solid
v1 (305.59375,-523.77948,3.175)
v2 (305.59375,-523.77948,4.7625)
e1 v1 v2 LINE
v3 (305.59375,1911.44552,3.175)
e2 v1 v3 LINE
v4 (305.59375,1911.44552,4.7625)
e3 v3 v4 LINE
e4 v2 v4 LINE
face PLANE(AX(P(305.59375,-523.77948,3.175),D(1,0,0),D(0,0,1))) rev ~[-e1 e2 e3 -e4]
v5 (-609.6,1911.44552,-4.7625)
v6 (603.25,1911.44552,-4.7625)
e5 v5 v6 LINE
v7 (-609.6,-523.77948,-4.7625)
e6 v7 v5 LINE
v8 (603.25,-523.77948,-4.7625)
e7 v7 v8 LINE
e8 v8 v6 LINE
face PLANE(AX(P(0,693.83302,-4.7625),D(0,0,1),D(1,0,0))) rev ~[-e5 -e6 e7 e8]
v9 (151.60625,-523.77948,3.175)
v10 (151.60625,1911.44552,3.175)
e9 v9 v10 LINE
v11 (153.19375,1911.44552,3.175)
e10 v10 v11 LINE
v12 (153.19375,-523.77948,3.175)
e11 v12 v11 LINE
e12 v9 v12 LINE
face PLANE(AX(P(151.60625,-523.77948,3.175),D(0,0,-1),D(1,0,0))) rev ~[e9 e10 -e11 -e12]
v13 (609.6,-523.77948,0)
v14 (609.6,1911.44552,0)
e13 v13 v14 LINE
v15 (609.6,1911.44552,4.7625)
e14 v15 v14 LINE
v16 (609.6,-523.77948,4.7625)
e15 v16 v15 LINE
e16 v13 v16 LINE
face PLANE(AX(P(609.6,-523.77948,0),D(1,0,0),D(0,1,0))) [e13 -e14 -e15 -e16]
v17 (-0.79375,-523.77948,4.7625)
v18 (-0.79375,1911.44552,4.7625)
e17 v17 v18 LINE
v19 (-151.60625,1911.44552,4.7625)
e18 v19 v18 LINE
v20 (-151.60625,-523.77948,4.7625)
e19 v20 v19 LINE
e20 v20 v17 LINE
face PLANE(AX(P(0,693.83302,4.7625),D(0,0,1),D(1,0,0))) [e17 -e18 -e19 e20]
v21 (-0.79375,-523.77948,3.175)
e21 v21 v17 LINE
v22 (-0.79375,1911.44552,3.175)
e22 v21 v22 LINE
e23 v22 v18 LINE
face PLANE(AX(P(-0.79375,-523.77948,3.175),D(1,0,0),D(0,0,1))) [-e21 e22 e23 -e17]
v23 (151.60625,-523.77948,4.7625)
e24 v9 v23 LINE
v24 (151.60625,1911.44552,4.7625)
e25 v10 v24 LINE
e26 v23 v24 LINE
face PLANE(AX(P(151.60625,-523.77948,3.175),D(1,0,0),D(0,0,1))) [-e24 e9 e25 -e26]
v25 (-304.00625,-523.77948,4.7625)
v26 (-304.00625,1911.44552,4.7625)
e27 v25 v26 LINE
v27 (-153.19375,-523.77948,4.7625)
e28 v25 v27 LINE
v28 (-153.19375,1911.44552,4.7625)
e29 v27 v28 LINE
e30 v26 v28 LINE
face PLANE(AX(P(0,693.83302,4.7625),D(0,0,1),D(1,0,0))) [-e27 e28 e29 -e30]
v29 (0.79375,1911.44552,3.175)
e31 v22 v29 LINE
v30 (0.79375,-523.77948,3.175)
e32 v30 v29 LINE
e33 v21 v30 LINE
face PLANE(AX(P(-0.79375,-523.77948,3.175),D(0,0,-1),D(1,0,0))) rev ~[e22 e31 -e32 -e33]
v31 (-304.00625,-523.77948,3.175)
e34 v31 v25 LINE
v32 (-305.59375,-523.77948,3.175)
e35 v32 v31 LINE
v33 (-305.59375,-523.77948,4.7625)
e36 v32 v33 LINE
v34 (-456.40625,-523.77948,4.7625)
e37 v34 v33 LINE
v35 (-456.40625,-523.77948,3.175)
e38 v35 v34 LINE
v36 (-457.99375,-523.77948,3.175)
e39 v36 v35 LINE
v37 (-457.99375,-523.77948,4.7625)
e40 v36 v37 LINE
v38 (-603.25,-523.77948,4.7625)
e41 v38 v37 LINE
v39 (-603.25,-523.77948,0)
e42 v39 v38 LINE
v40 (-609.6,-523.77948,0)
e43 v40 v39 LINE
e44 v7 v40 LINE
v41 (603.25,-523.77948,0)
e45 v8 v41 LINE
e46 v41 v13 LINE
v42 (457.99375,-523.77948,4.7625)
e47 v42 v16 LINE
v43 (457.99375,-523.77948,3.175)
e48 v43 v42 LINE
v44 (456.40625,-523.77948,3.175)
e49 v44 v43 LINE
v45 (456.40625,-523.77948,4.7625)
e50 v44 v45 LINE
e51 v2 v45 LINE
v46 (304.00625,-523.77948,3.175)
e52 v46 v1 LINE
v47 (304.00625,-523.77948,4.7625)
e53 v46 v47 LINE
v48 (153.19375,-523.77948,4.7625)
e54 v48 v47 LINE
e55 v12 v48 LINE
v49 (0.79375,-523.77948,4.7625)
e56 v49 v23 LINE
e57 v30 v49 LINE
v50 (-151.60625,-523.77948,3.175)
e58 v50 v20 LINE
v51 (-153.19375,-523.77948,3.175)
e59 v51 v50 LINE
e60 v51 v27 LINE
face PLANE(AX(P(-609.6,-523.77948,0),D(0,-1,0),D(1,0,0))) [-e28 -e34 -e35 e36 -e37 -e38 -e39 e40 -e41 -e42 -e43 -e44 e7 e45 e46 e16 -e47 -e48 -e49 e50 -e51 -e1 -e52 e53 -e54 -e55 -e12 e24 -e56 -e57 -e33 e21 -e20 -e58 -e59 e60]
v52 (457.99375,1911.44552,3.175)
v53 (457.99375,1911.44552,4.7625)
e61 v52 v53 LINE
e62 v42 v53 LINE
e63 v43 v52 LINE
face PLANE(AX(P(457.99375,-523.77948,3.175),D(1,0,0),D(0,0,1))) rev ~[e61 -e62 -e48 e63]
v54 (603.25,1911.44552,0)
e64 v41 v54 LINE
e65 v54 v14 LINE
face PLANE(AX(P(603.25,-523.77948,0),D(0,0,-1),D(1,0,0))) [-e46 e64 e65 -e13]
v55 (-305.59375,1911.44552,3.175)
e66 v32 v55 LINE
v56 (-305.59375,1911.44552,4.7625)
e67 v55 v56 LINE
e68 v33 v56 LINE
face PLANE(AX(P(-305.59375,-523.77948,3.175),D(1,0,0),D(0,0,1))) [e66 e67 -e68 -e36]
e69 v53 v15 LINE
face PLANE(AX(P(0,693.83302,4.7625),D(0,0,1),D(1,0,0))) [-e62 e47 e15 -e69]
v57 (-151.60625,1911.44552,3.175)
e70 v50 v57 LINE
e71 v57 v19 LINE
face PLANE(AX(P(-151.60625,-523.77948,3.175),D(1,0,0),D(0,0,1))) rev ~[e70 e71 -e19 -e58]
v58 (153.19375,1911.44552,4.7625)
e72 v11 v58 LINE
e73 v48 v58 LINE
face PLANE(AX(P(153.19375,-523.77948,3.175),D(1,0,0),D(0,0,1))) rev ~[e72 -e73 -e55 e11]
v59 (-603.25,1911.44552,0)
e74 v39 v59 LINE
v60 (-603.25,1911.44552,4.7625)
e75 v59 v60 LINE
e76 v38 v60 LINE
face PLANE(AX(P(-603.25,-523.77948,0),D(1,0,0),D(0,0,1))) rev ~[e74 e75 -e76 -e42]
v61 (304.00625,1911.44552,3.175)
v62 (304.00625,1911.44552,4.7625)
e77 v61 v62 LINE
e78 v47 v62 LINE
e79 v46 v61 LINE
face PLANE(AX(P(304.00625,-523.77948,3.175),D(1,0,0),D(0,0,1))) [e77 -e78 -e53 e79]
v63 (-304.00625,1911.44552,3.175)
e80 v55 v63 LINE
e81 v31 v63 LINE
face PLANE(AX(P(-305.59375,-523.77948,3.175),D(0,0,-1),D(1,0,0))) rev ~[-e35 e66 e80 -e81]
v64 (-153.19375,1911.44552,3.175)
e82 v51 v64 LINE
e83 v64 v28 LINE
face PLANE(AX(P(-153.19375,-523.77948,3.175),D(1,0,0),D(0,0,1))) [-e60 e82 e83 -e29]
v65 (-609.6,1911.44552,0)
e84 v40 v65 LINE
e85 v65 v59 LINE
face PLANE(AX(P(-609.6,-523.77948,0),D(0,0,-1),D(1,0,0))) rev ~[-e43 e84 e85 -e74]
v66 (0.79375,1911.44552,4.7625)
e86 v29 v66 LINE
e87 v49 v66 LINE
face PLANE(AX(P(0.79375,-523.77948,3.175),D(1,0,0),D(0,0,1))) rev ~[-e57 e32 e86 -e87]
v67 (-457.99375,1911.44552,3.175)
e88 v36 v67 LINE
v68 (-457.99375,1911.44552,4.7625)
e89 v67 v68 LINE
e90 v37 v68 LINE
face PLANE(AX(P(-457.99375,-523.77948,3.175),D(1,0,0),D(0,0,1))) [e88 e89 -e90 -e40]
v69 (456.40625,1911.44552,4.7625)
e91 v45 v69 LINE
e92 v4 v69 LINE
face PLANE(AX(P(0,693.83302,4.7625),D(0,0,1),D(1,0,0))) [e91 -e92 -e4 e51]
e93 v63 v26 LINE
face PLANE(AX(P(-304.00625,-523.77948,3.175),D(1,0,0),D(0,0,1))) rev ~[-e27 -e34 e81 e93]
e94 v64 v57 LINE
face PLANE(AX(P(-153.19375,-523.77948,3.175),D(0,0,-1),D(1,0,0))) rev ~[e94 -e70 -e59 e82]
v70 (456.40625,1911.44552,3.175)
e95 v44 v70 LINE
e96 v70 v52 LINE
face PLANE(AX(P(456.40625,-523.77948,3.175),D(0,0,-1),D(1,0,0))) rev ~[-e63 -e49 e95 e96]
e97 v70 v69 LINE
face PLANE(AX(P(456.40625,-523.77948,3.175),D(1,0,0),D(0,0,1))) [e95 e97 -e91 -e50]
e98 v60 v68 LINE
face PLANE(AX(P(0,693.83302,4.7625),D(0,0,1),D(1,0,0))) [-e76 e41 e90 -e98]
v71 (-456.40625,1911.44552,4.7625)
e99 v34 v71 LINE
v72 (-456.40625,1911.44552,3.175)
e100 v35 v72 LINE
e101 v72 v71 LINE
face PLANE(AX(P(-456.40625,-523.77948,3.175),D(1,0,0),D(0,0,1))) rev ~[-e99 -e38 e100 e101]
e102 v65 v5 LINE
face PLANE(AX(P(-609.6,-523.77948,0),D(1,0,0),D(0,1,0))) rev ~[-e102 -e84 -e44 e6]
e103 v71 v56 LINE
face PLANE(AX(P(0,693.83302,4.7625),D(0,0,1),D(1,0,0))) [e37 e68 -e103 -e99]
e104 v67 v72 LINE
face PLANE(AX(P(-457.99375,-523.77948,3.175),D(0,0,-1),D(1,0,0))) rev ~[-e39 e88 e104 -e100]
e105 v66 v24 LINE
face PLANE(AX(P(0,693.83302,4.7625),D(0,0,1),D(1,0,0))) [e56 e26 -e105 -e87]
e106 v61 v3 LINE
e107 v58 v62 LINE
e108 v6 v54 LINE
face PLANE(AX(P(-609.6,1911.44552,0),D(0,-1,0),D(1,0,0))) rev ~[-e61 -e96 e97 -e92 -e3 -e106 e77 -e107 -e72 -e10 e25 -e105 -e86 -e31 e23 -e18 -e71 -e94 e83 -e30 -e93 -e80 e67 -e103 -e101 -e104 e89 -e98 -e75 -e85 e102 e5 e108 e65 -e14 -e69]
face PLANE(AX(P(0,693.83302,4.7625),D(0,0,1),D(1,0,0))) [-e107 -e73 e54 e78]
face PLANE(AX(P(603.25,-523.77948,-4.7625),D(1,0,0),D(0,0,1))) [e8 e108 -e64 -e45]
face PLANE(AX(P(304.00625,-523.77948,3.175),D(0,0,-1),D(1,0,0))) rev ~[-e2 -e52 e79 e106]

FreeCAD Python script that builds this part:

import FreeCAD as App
import Part
import Sketcher
Q = App.Units.Quantity


def add_polygon(sketch, points):
    """Adds a closed chain of lines whose ends are joined by coincident constraints."""
    first, n = sketch.GeometryCount, len(points)
    for a, b in zip(points, points[1:] + points[:1]):
        sketch.addGeometry(Part.LineSegment(App.Vector(*a, 0), App.Vector(*b, 0)), False)
    for i in range(n):
        sketch.addConstraint(Sketcher.Constraint("Coincident", first + i, 2, first + (i + 1) % n, 1))

doc = App.newDocument("Part")
body = doc.addObject("PartDesign::Body", "Body")

# Sketch on XY plane
sketch1 = doc.addObject("Sketcher::SketchObject", "Sketch")
body.addObject(sketch1)
sketch1.AttachmentSupport = (doc.XY_Plane, [""])
sketch1.MapMode = "FlatFace"
add_polygon(sketch1, [(-609.6, 1911.44552), (-609.6, -523.77948), (609.6, -523.77948), (609.6, 1911.44552)])  # lines 0-3
sketch1.addConstraint([
    Sketcher.Constraint("Vertical", 0),
    Sketcher.Constraint("Horizontal", 1),
    Sketcher.Constraint("Vertical", 2),
    Sketcher.Constraint("Horizontal", 3),
    Sketcher.Constraint("DistanceX", 1, 1, 1, 2, Q("48 in")),
    Sketcher.Constraint("DistanceX", 0, 2, -1, 1, Q("24 in")),
    Sketcher.Constraint("DistanceY", 0, 2, 0, 1, Q("95.875 in")),
    Sketcher.Constraint("DistanceY", 0, 2, -1, 1, 523.77948),
])
pad1 = doc.addObject("PartDesign::Pad", "Pad")
body.addObject(pad1)
pad1.Profile = sketch1
pad1.Length = Q("0.375 in")
pad1.Midplane = True

# Sketch on XZ plane
sketch2 = doc.addObject("Sketcher::SketchObject", "Sketch001")
body.addObject(sketch2)
sketch2.AttachmentSupport = (doc.XZ_Plane, [""])
sketch2.MapMode = "FlatFace"
sketch2.AttachmentOffset = App.Placement(App.Vector(0, 0, 523.77948), App.Rotation())
add_polygon(sketch2, [(603.25, 0), (603.25, -4.7625), (609.6, -4.7625), (609.6, 0)])  # lines 0-3
add_polygon(sketch2, [(-609.6, 4.7625), (-609.6, 0), (-603.25, 0), (-603.25, 4.7625)])  # lines 4-7
sketch2.addConstraint([
    Sketcher.Constraint("Vertical", 0),
    Sketcher.Constraint("Horizontal", 1),
    Sketcher.Constraint("Vertical", 2),
    Sketcher.Constraint("Horizontal", 3),
    Sketcher.Constraint("Vertical", 4),
    Sketcher.Constraint("Horizontal", 5),
    Sketcher.Constraint("Vertical", 6),
    Sketcher.Constraint("Horizontal", 7),
    Sketcher.Constraint("Symmetric", 2, 2, 4, 2, -1, 1),
    Sketcher.Constraint("Symmetric", 0, 2, 6, 2, -1, 1),
    Sketcher.Constraint("PointOnObject", 2, 2, -1),
    Sketcher.Constraint("DistanceX", -1, 1, 1, 2, Q("24 in")),
    Sketcher.Constraint("DistanceX", 1, 1, 1, 2, Q("0.25 in")),
    Sketcher.Constraint("DistanceY", 0, 2, 0, 1, Q("0.1875 in")),
])
pocket1 = doc.addObject("PartDesign::Pocket", "Pocket")
body.addObject(pocket1)
pocket1.Profile = sketch2
pocket1.Type = "ThroughAll"

# Sketch on XZ plane
sketch3 = doc.addObject("Sketcher::SketchObject", "Sketch002")
body.addObject(sketch3)
sketch3.AttachmentSupport = (doc.XZ_Plane, [""])
sketch3.MapMode = "FlatFace"
sketch3.AttachmentOffset = App.Placement(App.Vector(0, 0, 523.77948), App.Rotation())
add_polygon(sketch3, [(-457.99375, 4.7625), (-457.99375, 3.175), (-456.40625, 3.175), (-456.40625, 4.7625)])  # lines 0-3
add_polygon(sketch3, [(-305.59375, 4.7625), (-305.59375, 3.175), (-304.00625, 3.175), (-304.00625, 4.7625)])  # lines 4-7
add_polygon(sketch3, [(-153.19375, 4.7625), (-153.19375, 3.175), (-151.60625, 3.175), (-151.60625, 4.7625)])  # lines 8-11
add_polygon(sketch3, [(-0.79375, 4.7625), (-0.79375, 3.175), (0.79375, 3.175), (0.79375, 4.7625)])  # lines 12-15
add_polygon(sketch3, [(151.60625, 4.7625), (151.60625, 3.175), (153.19375, 3.175), (153.19375, 4.7625)])  # lines 16-19
add_polygon(sketch3, [(304.00625, 4.7625), (304.00625, 3.175), (305.59375, 3.175), (305.59375, 4.7625)])  # lines 20-23
add_polygon(sketch3, [(456.40625, 4.7625), (456.40625, 3.175), (457.99375, 3.175), (457.99375, 4.7625)])  # lines 24-27
sketch3.addConstraint([
    Sketcher.Constraint("Vertical", 0),
    Sketcher.Constraint("Horizontal", 1),
    Sketcher.Constraint("Vertical", 2),
    Sketcher.Constraint("Horizontal", 3),
    Sketcher.Constraint("Vertical", 4),
    Sketcher.Constraint("Horizontal", 5),
    Sketcher.Constraint("Vertical", 6),
    Sketcher.Constraint("Horizontal", 7),
    Sketcher.Constraint("Vertical", 8),
    Sketcher.Constraint("Horizontal", 9),
    Sketcher.Constraint("Vertical", 10),
    Sketcher.Constraint("Horizontal", 11),
    Sketcher.Constraint("Vertical", 12),
    Sketcher.Constraint("Horizontal", 13),
    Sketcher.Constraint("Vertical", 14),
    Sketcher.Constraint("Horizontal", 15),
    Sketcher.Constraint("Vertical", 16),
    Sketcher.Constraint("Horizontal", 17),
    Sketcher.Constraint("Vertical", 18),
    Sketcher.Constraint("Horizontal", 19),
    Sketcher.Constraint("Vertical", 20),
    Sketcher.Constraint("Horizontal", 21),
    Sketcher.Constraint("Vertical", 22),
    Sketcher.Constraint("Horizontal", 23),
    Sketcher.Constraint("Vertical", 24),
    Sketcher.Constraint("Horizontal", 25),
    Sketcher.Constraint("Vertical", 26),
    Sketcher.Constraint("Horizontal", 27),
    Sketcher.Constraint("Symmetric", 9, 2, 16, 2, -2),
    Sketcher.Constraint("Symmetric", 11, 2, 18, 2, -2),
    Sketcher.Constraint("Symmetric", 5, 2, 20, 2, -2),
    Sketcher.Constraint("Symmetric", 7, 2, 22, 2, -2),
    Sketcher.Constraint("Symmetric", 1, 2, 24, 2, -2),
    Sketcher.Constraint("Symmetric", 3, 2, 26, 2, -2),
    Sketcher.Constraint("Horizontal", 1, 2, 4, 2),
    Sketcher.Constraint("Horizontal", 3, 2, 6, 2),
    Sketcher.Constraint("Horizontal", 5, 2, 8, 2),
    Sketcher.Constraint("Horizontal", 7, 2, 10, 2),
    Sketcher.Constraint("Horizontal", 9, 2, 12, 2),
    Sketcher.Constraint("Horizontal", 11, 2, 14, 2),
    Sketcher.Constraint("Equal", 3, 5),
    Sketcher.Constraint("Equal", 7, 9),
    Sketcher.Constraint("Equal", 11, 13),
    Sketcher.Constraint("Equal", 27, 0),
    Sketcher.Constraint("DistanceX", 0, 2, 4, 2, Q("6 in")),
    Sketcher.Constraint("DistanceX", 4, 2, 8, 2, Q("6 in")),
    Sketcher.Constraint("DistanceX", 8, 2, 12, 2, Q("6 in")),
    Sketcher.Constraint("DistanceX", 12, 2, 16, 2, Q("6 in")),
    Sketcher.Constraint("DistanceX", 1, 1, 1, 2, Q("0.0625 in")),
    Sketcher.Constraint("DistanceY", -1, 1, 0, 2, Q("0.125 in")),
])
pocket2 = doc.addObject("PartDesign::Pocket", "Pocket001")
body.addObject(pocket2)
pocket2.Profile = sketch3
pocket2.Type = "ThroughAll"

doc.recompute()
